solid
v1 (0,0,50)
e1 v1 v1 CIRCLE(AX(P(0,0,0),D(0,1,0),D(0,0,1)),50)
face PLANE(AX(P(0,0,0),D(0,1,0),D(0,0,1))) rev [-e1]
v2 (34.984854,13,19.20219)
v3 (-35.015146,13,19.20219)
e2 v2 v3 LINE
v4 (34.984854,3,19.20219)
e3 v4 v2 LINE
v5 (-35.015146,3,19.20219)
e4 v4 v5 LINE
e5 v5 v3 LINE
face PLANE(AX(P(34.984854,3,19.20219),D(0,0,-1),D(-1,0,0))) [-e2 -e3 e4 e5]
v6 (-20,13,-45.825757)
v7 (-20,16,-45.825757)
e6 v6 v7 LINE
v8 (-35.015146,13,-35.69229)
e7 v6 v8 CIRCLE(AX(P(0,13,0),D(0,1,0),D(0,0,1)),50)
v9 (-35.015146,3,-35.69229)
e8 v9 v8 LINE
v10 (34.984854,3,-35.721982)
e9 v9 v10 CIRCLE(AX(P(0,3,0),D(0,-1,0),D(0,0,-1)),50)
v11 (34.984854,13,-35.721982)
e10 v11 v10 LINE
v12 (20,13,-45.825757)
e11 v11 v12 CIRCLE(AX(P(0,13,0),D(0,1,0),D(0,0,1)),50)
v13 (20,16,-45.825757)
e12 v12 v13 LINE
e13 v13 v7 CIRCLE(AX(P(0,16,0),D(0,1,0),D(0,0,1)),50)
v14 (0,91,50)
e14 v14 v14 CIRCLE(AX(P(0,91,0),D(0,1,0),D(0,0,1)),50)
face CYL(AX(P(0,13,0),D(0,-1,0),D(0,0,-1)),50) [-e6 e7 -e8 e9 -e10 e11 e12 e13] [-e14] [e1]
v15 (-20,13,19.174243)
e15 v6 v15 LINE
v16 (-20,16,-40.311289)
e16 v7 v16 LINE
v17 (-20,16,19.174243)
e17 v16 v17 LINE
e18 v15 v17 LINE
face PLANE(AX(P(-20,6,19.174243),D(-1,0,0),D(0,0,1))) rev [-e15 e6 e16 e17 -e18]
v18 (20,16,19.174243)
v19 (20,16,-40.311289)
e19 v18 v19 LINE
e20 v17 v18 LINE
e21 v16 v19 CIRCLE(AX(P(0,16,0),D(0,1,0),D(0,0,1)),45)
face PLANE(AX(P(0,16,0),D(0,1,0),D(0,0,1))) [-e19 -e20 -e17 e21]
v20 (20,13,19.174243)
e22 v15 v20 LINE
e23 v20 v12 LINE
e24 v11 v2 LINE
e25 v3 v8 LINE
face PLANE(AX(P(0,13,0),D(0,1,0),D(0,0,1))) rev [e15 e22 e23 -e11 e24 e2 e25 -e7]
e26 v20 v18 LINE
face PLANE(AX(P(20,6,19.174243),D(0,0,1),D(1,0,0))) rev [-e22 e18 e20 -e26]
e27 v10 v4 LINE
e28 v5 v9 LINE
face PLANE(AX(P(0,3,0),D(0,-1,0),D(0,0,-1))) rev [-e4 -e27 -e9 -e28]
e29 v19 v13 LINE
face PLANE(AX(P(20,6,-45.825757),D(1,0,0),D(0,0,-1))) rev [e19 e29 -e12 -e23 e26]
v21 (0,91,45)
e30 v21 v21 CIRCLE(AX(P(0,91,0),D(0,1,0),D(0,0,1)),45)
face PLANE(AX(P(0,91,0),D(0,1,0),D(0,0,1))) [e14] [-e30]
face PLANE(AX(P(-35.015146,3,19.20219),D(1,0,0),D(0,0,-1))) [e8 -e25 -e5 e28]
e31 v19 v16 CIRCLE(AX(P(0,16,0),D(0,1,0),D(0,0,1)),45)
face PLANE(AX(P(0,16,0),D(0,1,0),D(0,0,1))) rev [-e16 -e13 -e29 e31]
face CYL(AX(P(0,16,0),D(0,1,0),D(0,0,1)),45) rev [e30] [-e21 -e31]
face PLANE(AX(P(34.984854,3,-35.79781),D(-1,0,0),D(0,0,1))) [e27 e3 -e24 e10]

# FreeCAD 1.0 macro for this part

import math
import FreeCAD as App
import Part
import Sketcher
from FreeCAD import Vector


def add_polygon(sketch, points):
    """Adds a closed chain of lines whose ends are joined by coincident constraints."""
    first, n = sketch.GeometryCount, len(points)
    for a, b in zip(points, points[1:] + points[:1]):
        sketch.addGeometry(Part.LineSegment(App.Vector(*a, 0), App.Vector(*b, 0)), False)
    for i in range(n):
        sketch.addConstraint(Sketcher.Constraint("Coincident", first + i, 2, first + (i + 1) % n, 1))

doc = App.newDocument("Part")
body = doc.addObject("PartDesign::Body", "Body")
body.AllowCompound = True

# Sketch on XZ plane
sketch1 = doc.addObject("Sketcher::SketchObject", "Sketch")
body.addObject(sketch1)
sketch1.AttachmentSupport = (doc.XZ_Plane, [""])
sketch1.MapMode = "FlatFace"
sketch1.addGeometry(Part.Circle(Vector(0, 0, 0), Vector(0, 0, 1), 50), False)
sketch1.addConstraint([
    Sketcher.Constraint("Coincident", 0, 3, -1, 1),
    Sketcher.Constraint("Diameter", 0, 100.0),
])
pad1 = doc.addObject("PartDesign::Pad", "Pad")
body.addObject(pad1)
pad1.Profile = sketch1
pad1.Length = 13
pad1.Reversed = True

# Sketch on XZ plane
sketch2 = doc.addObject("Sketcher::SketchObject", "Sketch001")
body.addObject(sketch2)
sketch2.AttachmentSupport = (doc.XZ_Plane, [""])
sketch2.MapMode = "FlatFace"
sketch2.AttachmentOffset = App.Placement(Vector(0, 0, -13), App.Rotation())
add_polygon(sketch2, [(-35, -36), (-35, 19), (35, 19), (35, -36)])  # lines 0-3
sketch2.addConstraint([
    Sketcher.Constraint("Vertical", 0),
    Sketcher.Constraint("Horizontal", 1),
    Sketcher.Constraint("Vertical", 2),
    Sketcher.Constraint("Horizontal", 3),
    Sketcher.Constraint("DistanceX", 1, 1, 1, 2, 70.0),
    Sketcher.Constraint("DistanceY", 0, 1, 0, 2, 55.0),
    Sketcher.Constraint("DistanceY", -1, 1, 0, 2, 19.20219),
    Sketcher.Constraint("DistanceX", 0, 2, -1, 1, 35.015146),
])
pocket1 = doc.addObject("PartDesign::Pocket", "Pocket")
body.addObject(pocket1)
pocket1.Profile = sketch2
pocket1.Length = 10
pocket1.Reversed = True

# Sketch on XZ plane
sketch3 = doc.addObject("Sketcher::SketchObject", "Sketch002")
body.addObject(sketch3)
sketch3.AttachmentSupport = (doc.XZ_Plane, [""])
sketch3.MapMode = "FlatFace"
sketch3.AttachmentOffset = App.Placement(Vector(0, 0, -3), App.Rotation())
sketch3.addGeometry([
    Part.LineSegment(Vector(-35, -36, 0), Vector(35, -36, 0)),
    Part.ArcOfCircle(Part.Circle(Vector(0, 0, 0), Vector(0, 0, 1), 50), math.radians(-134), math.radians(-46)),
], False)
sketch3.addConstraint([
    Sketcher.Constraint("Coincident", 0, 1, 1, 1),
    Sketcher.Constraint("Coincident", 1, 2, 0, 2),
    Sketcher.Constraint("Coincident", 1, 3, -1, 1),
    Sketcher.Constraint("Radius", 1, 50.0),
    Sketcher.Constraint("DistanceX", 0, 1, 1, 2, 70.0),
    Sketcher.Constraint("DistanceY", 0, 1, -1, 1, 35.69229),
])
pocket2 = doc.addObject("PartDesign::Pocket", "Pocket001")
body.addObject(pocket2)
pocket2.Profile = sketch3
pocket2.Length = 10

# Sketch on XZ plane
sketch4 = doc.addObject("Sketcher::SketchObject", "Sketch003")
body.addObject(sketch4)
sketch4.AttachmentSupport = (doc.XZ_Plane, [""])
sketch4.MapMode = "FlatFace"
sketch4.AttachmentOffset = App.Placement(Vector(0, 0, -13), App.Rotation())
sketch4.addGeometry(Part.Circle(Vector(0, 0, 0), Vector(0, 0, 1), 50), False)
sketch4.addConstraint([
    Sketcher.Constraint("Coincident", 0, 3, -1, 1),
    Sketcher.Constraint("Diameter", 0, 100.0),
])
pad2 = doc.addObject("PartDesign::Pad", "Pad001")
body.addObject(pad2)
pad2.Profile = sketch4
pad2.Length = 3
pad2.Reversed = True

# Sketch on XZ plane
sketch5 = doc.addObject("Sketcher::SketchObject", "Sketch004")
body.addObject(sketch5)
sketch5.AttachmentSupport = (doc.XZ_Plane, [""])
sketch5.MapMode = "FlatFace"
sketch5.AttachmentOffset = App.Placement(Vector(0, 0, -16), App.Rotation())
add_polygon(sketch5, [(-20, -46), (-20, 19), (20, 19), (20, -46)])  # lines 0-3
sketch5.addConstraint([
    Sketcher.Constraint("Vertical", 0),
    Sketcher.Constraint("Horizontal", 1),
    Sketcher.Constraint("Vertical", 2),
    Sketcher.Constraint("Horizontal", 3),
    Sketcher.Constraint("DistanceX", 1, 1, 1, 2, 40.0),
    Sketcher.Constraint("DistanceY", 0, 1, 0, 2, 65.0),
    Sketcher.Constraint("DistanceX", 0, 2, -1, 1, 20.0),
    Sketcher.Constraint("DistanceY", -1, 1, 0, 2, 19.174243),
])
pocket3 = doc.addObject("PartDesign::Pocket", "Pocket002")
body.addObject(pocket3)
pocket3.Profile = sketch5
pocket3.Length = 10
pocket3.Reversed = True

# Sketch on XZ plane
sketch6 = doc.addObject("Sketcher::SketchObject", "Sketch005")
body.addObject(sketch6)
sketch6.AttachmentSupport = (doc.XZ_Plane, [""])
sketch6.MapMode = "FlatFace"
sketch6.AttachmentOffset = App.Placement(Vector(0, 0, -6), App.Rotation())
sketch6.addGeometry([
    Part.LineSegment(Vector(-20, -46, 0), Vector(20, -46, 0)),
    Part.ArcOfCircle(Part.Circle(Vector(0, 0, 0), Vector(0, 0, 1), 50), math.radians(-114), math.radians(-66)),
], False)
sketch6.addConstraint([
    Sketcher.Constraint("Coincident", 0, 1, 1, 1),
    Sketcher.Constraint("Coincident", 1, 2, 0, 2),
    Sketcher.Constraint("Horizontal", 0),
    Sketcher.Constraint("Coincident", 1, 3, -1, 1),
    Sketcher.Constraint("Radius", 1, 50.0),
    Sketcher.Constraint("DistanceX", 0, 1, 0, 2, 40.0),
])
pocket4 = doc.addObject("PartDesign::Pocket", "Pocket003")
body.addObject(pocket4)
pocket4.Profile = sketch6
pocket4.Length = 10

# Sketch on XZ plane
sketch7 = doc.addObject("Sketcher::SketchObject", "Sketch006")
body.addObject(sketch7)
sketch7.AttachmentSupport = (doc.XZ_Plane, [""])
sketch7.MapMode = "FlatFace"
sketch7.AttachmentOffset = App.Placement(Vector(0, 0, -16), App.Rotation())
sketch7.addGeometry(Part.Circle(Vector(0, 0, 0), Vector(0, 0, 1), 50), False)
sketch7.addConstraint([
    Sketcher.Constraint("Coincident", 0, 3, -1, 1),
    Sketcher.Constraint("Diameter", 0, 100.0),
])
pad3 = doc.addObject("PartDesign::Pad", "Pad002")
body.addObject(pad3)
pad3.Profile = sketch7
pad3.Length = 75
pad3.Reversed = True

# Sketch on XZ plane
sketch8 = doc.addObject("Sketcher::SketchObject", "Sketch007")
body.addObject(sketch8)
sketch8.AttachmentSupport = (doc.XZ_Plane, [""])
sketch8.MapMode = "FlatFace"
sketch8.AttachmentOffset = App.Placement(Vector(0, 0, -91), App.Rotation())
sketch8.addGeometry(Part.Circle(Vector(0, 0, 0), Vector(0, 0, 1), 45), False)
sketch8.addConstraint([
    Sketcher.Constraint("Coincident", 0, 3, -1, 1),
    Sketcher.Constraint("Diameter", 0, 90.0),
])
pocket5 = doc.addObject("PartDesign::Pocket", "Pocket004")
body.addObject(pocket5)
pocket5.Profile = sketch8
pocket5.Length = 75
pocket5.Reversed = True

doc.recompute()
